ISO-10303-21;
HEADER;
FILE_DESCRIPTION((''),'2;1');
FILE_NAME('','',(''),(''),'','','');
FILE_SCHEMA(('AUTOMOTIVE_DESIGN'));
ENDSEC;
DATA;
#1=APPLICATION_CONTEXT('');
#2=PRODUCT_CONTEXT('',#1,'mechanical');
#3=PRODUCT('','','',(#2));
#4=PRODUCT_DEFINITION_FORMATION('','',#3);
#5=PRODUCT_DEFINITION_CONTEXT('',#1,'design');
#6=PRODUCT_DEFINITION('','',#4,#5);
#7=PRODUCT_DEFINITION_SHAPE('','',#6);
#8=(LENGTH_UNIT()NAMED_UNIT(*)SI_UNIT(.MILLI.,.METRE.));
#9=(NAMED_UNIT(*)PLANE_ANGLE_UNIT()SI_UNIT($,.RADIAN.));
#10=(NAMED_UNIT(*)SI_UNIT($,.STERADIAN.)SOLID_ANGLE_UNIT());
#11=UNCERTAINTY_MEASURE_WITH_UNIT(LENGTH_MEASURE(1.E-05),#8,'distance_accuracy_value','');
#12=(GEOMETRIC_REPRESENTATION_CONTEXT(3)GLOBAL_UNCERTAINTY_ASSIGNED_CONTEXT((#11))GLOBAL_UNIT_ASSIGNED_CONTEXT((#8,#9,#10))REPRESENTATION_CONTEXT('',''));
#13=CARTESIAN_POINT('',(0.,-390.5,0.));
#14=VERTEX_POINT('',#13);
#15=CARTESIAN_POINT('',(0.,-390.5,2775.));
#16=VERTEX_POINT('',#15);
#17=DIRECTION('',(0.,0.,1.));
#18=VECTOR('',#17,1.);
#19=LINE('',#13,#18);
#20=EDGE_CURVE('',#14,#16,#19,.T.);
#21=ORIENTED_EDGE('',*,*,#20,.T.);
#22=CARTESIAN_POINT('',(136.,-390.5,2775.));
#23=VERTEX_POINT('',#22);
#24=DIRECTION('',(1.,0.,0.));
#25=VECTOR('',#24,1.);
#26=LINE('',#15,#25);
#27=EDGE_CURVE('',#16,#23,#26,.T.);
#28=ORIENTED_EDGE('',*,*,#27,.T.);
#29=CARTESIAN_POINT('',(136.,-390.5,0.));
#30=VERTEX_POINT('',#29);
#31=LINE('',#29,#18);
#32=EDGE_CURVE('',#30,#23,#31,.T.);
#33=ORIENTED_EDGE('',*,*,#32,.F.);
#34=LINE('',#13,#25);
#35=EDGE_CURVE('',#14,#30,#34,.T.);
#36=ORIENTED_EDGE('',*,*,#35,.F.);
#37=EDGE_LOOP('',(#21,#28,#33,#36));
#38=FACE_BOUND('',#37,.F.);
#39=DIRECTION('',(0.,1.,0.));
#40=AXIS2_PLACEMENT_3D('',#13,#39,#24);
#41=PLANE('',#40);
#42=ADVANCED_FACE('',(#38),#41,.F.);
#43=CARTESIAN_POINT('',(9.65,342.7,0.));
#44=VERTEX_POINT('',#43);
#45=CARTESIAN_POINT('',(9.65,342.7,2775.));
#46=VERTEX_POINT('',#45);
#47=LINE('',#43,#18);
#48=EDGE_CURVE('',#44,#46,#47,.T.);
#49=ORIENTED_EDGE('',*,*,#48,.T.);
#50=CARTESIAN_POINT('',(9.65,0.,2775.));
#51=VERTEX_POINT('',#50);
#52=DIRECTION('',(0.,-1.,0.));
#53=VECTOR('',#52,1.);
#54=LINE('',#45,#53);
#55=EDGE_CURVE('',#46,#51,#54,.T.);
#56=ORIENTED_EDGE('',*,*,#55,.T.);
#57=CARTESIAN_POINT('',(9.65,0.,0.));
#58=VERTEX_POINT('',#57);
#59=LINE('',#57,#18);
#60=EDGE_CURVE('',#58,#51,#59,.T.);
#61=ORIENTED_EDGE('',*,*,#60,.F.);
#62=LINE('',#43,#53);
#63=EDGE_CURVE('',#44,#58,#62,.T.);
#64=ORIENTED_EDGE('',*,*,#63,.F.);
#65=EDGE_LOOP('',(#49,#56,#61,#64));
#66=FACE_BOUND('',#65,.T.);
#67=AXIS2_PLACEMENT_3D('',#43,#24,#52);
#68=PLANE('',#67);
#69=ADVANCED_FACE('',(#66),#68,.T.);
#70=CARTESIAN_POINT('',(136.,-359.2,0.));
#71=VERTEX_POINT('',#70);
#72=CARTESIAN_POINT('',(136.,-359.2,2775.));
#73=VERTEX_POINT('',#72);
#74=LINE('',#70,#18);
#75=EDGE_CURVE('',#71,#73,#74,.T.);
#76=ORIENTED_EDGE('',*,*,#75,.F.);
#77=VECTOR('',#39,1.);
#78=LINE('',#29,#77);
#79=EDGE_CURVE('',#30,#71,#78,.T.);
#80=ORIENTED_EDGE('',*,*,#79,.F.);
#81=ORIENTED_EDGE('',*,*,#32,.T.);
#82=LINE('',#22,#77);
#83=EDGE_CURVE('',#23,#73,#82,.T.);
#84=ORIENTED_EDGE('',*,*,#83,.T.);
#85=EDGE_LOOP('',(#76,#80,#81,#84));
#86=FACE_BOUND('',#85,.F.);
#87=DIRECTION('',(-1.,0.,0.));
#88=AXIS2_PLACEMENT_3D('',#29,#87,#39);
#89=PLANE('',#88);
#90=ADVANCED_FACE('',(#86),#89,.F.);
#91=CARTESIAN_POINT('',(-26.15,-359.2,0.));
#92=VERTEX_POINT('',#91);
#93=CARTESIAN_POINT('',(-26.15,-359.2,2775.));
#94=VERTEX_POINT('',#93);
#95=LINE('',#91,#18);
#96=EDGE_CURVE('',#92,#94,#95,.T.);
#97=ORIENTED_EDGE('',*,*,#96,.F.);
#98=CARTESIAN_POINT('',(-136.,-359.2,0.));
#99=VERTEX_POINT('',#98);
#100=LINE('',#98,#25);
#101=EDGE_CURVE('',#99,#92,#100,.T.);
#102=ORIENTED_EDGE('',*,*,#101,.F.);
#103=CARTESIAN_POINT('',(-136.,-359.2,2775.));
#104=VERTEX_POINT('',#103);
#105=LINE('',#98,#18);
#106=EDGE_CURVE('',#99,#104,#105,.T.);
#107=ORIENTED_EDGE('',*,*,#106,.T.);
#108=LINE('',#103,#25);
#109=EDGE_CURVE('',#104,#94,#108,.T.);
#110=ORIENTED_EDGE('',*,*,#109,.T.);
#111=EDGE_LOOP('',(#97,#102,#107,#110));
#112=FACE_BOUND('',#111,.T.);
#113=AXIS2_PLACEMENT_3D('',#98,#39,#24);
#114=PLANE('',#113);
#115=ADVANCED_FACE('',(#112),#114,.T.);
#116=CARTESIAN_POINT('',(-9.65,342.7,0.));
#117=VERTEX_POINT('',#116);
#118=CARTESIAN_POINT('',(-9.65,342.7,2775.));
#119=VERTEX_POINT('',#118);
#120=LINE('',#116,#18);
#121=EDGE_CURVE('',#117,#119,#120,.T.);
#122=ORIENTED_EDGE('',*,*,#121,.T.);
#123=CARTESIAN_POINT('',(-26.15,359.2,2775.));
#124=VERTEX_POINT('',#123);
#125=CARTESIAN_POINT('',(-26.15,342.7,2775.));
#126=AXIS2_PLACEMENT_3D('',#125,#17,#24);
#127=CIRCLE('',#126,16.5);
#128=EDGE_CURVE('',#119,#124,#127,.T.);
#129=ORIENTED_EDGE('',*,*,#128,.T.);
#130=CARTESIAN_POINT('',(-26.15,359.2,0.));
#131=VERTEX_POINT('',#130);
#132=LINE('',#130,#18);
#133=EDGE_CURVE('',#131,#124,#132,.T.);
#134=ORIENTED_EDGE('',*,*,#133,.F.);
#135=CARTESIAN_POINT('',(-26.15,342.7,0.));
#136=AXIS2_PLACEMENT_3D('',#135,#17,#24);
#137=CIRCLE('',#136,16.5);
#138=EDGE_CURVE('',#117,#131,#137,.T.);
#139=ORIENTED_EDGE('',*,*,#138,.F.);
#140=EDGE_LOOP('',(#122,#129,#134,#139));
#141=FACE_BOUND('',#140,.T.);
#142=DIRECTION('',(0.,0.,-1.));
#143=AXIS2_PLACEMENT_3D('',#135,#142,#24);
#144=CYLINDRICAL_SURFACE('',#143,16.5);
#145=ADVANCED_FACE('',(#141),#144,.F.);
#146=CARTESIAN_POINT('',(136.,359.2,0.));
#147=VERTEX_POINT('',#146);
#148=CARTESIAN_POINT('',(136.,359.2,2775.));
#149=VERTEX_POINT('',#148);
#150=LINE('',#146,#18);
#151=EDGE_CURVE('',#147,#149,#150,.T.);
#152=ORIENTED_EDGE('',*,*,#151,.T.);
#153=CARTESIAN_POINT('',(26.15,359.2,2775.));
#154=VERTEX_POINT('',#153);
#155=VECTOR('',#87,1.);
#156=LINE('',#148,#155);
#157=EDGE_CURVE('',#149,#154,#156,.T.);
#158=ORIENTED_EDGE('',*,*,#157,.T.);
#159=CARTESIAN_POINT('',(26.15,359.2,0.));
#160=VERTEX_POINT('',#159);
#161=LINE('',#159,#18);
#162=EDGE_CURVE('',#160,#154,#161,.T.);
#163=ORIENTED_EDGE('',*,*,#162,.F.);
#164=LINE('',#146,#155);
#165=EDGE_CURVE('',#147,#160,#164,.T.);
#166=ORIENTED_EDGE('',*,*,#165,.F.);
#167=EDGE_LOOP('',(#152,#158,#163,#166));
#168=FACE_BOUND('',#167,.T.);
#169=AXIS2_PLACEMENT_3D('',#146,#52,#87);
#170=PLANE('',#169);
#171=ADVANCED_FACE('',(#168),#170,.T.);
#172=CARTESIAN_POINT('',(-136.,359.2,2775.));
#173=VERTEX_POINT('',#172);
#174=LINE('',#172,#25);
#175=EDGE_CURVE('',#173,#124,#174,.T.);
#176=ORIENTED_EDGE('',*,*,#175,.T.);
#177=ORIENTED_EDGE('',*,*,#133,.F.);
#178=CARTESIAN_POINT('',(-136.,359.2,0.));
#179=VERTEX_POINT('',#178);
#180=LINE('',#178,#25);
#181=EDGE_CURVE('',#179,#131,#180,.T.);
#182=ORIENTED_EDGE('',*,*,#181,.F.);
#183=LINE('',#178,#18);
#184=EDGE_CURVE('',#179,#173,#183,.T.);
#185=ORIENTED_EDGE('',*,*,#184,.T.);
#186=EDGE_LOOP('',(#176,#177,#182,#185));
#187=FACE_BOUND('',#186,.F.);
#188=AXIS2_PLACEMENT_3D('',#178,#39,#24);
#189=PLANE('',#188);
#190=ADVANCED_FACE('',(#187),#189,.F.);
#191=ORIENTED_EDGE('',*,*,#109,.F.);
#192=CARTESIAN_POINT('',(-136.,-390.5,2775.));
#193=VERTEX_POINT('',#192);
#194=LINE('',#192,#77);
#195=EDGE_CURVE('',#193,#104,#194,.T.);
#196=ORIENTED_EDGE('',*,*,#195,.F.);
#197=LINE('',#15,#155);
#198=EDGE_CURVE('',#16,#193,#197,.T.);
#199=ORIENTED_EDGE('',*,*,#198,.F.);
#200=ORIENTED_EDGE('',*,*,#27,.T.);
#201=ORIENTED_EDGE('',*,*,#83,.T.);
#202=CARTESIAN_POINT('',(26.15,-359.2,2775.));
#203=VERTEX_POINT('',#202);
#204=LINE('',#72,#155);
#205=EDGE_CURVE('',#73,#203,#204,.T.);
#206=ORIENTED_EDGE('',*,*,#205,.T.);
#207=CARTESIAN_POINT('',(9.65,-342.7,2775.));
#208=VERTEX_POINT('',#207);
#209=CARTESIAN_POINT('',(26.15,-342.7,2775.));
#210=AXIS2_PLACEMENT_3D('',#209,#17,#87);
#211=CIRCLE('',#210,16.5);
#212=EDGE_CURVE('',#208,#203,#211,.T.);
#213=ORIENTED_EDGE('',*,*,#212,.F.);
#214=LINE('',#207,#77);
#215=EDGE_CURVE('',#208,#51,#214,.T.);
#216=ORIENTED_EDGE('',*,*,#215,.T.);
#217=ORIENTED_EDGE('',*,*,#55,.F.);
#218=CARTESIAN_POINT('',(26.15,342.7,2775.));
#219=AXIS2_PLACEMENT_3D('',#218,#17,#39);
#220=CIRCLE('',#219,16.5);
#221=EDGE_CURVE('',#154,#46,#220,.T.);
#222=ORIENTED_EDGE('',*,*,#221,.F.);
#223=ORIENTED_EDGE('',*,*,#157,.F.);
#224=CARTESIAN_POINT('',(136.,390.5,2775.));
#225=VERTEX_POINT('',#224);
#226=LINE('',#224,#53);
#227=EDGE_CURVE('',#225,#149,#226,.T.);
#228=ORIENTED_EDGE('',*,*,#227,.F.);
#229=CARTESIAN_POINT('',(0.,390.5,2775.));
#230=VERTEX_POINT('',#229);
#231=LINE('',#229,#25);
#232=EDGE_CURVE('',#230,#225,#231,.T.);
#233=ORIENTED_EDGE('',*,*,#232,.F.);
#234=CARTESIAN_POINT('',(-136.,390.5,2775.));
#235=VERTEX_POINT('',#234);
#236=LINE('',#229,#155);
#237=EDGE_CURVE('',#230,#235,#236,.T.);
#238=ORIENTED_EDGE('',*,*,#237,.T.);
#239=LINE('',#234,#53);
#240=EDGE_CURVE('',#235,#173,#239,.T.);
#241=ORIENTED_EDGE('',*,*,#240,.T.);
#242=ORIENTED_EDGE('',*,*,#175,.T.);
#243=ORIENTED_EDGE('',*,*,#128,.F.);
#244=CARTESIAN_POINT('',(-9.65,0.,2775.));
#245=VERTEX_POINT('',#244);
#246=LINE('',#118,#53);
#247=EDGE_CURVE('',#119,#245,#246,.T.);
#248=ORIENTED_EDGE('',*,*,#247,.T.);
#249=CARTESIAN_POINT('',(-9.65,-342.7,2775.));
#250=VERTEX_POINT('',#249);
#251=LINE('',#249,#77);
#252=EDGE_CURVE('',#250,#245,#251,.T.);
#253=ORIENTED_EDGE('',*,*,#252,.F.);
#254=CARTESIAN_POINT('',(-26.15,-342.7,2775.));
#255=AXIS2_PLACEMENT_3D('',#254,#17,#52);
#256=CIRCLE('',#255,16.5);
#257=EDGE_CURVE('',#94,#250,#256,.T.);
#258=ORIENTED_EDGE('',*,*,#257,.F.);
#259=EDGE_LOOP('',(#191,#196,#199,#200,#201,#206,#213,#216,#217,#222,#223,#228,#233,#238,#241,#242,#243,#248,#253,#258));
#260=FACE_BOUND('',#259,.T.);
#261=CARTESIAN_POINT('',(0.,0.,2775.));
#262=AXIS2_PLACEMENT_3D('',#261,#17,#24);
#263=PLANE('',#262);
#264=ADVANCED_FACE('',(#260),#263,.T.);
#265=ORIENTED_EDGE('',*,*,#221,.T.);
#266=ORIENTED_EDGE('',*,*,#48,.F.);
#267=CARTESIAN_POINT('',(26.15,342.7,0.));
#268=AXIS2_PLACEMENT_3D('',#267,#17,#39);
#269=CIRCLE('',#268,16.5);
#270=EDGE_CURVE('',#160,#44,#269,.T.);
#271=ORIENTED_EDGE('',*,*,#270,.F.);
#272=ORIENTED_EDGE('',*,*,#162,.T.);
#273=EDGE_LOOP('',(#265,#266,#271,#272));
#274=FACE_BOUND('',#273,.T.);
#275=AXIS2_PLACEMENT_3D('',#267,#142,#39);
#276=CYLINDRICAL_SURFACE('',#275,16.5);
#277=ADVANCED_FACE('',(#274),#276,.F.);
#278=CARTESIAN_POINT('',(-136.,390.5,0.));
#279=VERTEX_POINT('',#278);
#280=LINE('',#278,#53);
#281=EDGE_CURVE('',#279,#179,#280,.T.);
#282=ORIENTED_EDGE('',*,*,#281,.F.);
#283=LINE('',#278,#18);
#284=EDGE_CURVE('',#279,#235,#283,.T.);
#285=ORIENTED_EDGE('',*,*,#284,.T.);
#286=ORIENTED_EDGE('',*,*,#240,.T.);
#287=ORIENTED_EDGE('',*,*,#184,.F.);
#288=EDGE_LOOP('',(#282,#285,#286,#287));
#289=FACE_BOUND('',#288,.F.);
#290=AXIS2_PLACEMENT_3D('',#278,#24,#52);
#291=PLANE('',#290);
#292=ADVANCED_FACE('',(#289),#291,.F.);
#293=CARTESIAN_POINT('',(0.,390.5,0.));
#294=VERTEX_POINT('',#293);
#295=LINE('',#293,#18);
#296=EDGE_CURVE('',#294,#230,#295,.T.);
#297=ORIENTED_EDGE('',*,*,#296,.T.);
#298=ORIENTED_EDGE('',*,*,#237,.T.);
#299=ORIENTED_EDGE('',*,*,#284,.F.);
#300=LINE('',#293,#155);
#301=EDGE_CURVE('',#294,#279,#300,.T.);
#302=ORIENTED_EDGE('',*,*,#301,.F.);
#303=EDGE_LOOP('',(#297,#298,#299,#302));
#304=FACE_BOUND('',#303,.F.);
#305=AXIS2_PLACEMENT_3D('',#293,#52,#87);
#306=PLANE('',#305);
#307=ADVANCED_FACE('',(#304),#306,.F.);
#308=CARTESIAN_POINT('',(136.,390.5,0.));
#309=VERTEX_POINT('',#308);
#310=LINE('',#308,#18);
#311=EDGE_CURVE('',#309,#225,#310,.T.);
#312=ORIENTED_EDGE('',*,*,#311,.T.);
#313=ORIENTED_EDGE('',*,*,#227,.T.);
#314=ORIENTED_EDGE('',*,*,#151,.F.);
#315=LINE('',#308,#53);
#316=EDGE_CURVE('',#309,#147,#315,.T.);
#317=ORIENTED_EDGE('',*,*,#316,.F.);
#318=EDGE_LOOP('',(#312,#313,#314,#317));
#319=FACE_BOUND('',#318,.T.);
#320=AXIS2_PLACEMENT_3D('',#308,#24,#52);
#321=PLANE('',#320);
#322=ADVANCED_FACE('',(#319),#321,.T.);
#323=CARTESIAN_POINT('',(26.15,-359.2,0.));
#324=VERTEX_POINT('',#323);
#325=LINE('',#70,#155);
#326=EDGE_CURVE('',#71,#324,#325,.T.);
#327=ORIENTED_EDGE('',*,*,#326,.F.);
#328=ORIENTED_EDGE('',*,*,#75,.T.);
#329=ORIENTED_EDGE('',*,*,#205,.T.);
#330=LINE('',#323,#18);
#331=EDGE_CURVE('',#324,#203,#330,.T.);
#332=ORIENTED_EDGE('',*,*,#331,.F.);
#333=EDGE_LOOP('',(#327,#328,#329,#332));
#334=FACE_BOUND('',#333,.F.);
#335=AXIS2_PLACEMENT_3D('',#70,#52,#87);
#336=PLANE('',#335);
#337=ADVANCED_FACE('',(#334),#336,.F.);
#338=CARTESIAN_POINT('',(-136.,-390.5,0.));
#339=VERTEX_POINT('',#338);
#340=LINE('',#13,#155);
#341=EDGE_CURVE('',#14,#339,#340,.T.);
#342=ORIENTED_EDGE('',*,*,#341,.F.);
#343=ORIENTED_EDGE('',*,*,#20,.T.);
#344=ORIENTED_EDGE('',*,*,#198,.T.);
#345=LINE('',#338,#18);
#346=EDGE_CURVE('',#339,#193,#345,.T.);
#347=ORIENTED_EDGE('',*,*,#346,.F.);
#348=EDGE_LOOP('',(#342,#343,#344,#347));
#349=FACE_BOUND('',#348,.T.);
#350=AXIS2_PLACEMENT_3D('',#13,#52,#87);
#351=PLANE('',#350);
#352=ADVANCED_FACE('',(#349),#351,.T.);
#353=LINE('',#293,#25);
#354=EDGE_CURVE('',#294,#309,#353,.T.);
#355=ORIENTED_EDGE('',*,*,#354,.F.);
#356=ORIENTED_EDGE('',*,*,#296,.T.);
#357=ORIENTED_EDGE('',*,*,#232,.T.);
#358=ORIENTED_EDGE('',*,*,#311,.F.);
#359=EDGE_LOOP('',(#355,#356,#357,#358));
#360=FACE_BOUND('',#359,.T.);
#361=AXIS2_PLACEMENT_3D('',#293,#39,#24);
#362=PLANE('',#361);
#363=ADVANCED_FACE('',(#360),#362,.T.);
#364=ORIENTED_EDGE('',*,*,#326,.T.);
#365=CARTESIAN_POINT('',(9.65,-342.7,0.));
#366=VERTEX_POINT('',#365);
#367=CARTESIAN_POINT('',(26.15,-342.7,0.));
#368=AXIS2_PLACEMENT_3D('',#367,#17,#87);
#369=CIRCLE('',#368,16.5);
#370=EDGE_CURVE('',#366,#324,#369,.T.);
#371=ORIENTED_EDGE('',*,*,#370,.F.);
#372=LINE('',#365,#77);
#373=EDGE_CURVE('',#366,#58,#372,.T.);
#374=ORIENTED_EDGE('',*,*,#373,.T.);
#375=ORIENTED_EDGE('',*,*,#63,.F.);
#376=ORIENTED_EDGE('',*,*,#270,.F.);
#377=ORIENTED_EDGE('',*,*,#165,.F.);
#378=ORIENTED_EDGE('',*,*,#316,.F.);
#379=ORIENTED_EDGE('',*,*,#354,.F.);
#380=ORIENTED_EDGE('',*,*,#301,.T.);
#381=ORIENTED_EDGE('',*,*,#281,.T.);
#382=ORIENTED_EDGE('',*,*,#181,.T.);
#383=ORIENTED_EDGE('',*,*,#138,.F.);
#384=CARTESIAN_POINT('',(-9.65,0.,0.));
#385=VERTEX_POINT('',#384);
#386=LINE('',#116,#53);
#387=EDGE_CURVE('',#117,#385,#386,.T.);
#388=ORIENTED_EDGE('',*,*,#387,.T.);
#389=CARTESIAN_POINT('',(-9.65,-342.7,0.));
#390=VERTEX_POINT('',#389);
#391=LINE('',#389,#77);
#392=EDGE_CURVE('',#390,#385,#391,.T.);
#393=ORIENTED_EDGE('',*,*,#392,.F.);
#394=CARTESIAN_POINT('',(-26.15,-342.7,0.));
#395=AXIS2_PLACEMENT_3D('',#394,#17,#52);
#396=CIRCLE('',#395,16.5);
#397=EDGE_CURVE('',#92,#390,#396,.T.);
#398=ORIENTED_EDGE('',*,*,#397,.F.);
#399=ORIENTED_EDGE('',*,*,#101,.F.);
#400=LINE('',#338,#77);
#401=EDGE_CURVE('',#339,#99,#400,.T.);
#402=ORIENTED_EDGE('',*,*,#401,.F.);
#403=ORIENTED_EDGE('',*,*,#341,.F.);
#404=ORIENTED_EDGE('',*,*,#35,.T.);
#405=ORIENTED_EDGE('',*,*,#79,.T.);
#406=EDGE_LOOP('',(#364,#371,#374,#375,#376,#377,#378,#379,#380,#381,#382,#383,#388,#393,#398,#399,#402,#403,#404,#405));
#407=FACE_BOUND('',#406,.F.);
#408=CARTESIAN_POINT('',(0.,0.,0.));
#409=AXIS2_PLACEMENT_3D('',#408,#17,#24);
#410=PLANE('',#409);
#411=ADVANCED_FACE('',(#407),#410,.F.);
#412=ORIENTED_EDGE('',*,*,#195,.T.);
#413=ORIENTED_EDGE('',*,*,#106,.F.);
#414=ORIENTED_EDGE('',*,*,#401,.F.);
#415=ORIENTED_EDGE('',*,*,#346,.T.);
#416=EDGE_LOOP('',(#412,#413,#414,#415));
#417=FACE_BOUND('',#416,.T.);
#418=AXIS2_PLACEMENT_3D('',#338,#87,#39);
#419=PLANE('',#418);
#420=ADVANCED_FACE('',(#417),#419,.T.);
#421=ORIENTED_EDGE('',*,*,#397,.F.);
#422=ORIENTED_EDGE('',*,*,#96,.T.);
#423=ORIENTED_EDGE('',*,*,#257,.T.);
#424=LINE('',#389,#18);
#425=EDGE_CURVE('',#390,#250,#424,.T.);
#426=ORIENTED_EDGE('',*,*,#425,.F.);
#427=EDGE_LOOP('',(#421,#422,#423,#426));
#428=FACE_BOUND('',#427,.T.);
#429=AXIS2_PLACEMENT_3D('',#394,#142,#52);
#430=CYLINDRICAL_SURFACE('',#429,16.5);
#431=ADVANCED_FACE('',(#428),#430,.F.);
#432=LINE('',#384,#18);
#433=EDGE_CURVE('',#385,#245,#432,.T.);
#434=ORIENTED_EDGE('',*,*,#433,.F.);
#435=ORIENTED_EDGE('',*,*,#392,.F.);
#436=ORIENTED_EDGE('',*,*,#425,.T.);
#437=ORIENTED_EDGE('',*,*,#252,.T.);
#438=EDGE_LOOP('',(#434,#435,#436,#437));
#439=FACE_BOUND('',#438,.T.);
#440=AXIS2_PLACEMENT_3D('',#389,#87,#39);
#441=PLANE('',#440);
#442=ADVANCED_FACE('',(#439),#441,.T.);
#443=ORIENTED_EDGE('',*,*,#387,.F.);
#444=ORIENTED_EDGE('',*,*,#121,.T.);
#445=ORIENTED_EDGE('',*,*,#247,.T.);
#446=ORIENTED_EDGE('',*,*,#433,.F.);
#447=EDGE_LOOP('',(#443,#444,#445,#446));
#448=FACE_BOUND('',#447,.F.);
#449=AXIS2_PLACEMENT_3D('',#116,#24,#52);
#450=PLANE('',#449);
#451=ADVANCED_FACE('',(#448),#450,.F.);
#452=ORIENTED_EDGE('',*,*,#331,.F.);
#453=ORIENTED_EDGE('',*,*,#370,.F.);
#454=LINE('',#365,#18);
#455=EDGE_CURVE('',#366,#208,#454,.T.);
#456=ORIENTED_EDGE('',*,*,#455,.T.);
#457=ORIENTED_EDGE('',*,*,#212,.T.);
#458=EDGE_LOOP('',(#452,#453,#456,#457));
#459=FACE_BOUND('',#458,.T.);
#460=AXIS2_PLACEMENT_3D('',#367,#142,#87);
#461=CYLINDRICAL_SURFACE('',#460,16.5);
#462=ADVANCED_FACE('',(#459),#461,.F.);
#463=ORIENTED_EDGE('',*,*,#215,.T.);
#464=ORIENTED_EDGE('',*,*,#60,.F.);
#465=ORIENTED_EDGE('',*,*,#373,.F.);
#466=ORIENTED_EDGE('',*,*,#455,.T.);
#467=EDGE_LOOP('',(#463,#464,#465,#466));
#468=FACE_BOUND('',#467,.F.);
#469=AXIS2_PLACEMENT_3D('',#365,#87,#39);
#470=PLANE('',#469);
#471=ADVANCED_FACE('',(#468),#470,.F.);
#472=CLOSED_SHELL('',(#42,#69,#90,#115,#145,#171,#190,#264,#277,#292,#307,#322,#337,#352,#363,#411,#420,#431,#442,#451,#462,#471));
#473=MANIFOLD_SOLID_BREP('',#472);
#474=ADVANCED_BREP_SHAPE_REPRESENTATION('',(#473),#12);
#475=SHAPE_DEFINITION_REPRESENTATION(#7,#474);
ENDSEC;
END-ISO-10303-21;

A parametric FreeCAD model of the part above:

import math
import FreeCAD as App
import Part
import Sketcher

doc = App.newDocument("Part")
body = doc.addObject("PartDesign::Body", "Body")

sketch1 = body.newObject("Sketcher::SketchObject", "Sketch")
sketch1.AttachmentSupport = (doc.getObject("XY_Plane"), [""])
sketch1.MapMode = "FlatFace"
sketch1.addGeometry(Part.LineSegment(App.Vector(-136, -359, 0), App.Vector(-136, -390, 0)), False)
sketch1.addGeometry(Part.LineSegment(App.Vector(-136, -390, 0), App.Vector(136, -390, 0)), False)
sketch1.addGeometry(Part.LineSegment(App.Vector(136, -390, 0), App.Vector(136, -359, 0)), False)
sketch1.addGeometry(Part.LineSegment(App.Vector(136, -359, 0), App.Vector(26, -359, 0)), False)
sketch1.addGeometry(Part.ArcOfCircle(Part.Circle(App.Vector(26, -343, 0), App.Vector(0, 0, 1), 16), math.radians(180), math.radians(270)), False)
sketch1.addGeometry(Part.LineSegment(App.Vector(10, -343, 0), App.Vector(10, 343, 0)), False)
sketch1.addGeometry(Part.ArcOfCircle(Part.Circle(App.Vector(26, 343, 0), App.Vector(0, 0, 1), 16), math.radians(90), math.radians(180)), False)
sketch1.addGeometry(Part.LineSegment(App.Vector(26, 359, 0), App.Vector(136, 359, 0)), False)
sketch1.addGeometry(Part.LineSegment(App.Vector(136, 359, 0), App.Vector(136, 390, 0)), False)
sketch1.addGeometry(Part.LineSegment(App.Vector(136, 390, 0), App.Vector(-136, 390, 0)), False)
sketch1.addGeometry(Part.LineSegment(App.Vector(-136, 390, 0), App.Vector(-136, 359, 0)), False)
sketch1.addGeometry(Part.LineSegment(App.Vector(-136, 359, 0), App.Vector(-26, 359, 0)), False)
sketch1.addGeometry(Part.ArcOfCircle(Part.Circle(App.Vector(-26, 343, 0), App.Vector(0, 0, 1), 16), math.radians(0), math.radians(90)), False)
sketch1.addGeometry(Part.LineSegment(App.Vector(-10, 343, 0), App.Vector(-10, -343, 0)), False)
sketch1.addGeometry(Part.ArcOfCircle(Part.Circle(App.Vector(-26, -343, 0), App.Vector(0, 0, 1), 16), math.radians(-90), math.radians(0)), False)
sketch1.addGeometry(Part.LineSegment(App.Vector(-26, -359, 0), App.Vector(-136, -359, 0)), False)
sketch1.addConstraint(Sketcher.Constraint("Coincident", 0, 2, 1, 1))
sketch1.addConstraint(Sketcher.Constraint("Coincident", 1, 2, 2, 1))
sketch1.addConstraint(Sketcher.Constraint("Coincident", 2, 2, 3, 1))
sketch1.addConstraint(Sketcher.Constraint("Tangent", 3, 2, 4, 2))
sketch1.addConstraint(Sketcher.Constraint("Tangent", 4, 1, 5, 1))
sketch1.addConstraint(Sketcher.Constraint("Tangent", 5, 2, 6, 2))
sketch1.addConstraint(Sketcher.Constraint("Tangent", 6, 1, 7, 1))
sketch1.addConstraint(Sketcher.Constraint("Coincident", 7, 2, 8, 1))
sketch1.addConstraint(Sketcher.Constraint("Coincident", 8, 2, 9, 1))
sketch1.addConstraint(Sketcher.Constraint("Coincident", 9, 2, 10, 1))
sketch1.addConstraint(Sketcher.Constraint("Coincident", 10, 2, 11, 1))
sketch1.addConstraint(Sketcher.Constraint("Tangent", 11, 2, 12, 2))
sketch1.addConstraint(Sketcher.Constraint("Tangent", 12, 1, 13, 1))
sketch1.addConstraint(Sketcher.Constraint("Tangent", 13, 2, 14, 2))
sketch1.addConstraint(Sketcher.Constraint("Tangent", 14, 1, 15, 1))
sketch1.addConstraint(Sketcher.Constraint("Coincident", 15, 2, 0, 1))
sketch1.addConstraint(Sketcher.Constraint("Vertical", 0))
sketch1.addConstraint(Sketcher.Constraint("Horizontal", 1))
sketch1.addConstraint(Sketcher.Constraint("Vertical", 2))
sketch1.addConstraint(Sketcher.Constraint("Horizontal", 3))
sketch1.addConstraint(Sketcher.Constraint("Vertical", 5))
sketch1.addConstraint(Sketcher.Constraint("Horizontal", 7))
sketch1.addConstraint(Sketcher.Constraint("Vertical", 8))
sketch1.addConstraint(Sketcher.Constraint("Horizontal", 9))
sketch1.addConstraint(Sketcher.Constraint("Vertical", 10))
sketch1.addConstraint(Sketcher.Constraint("Horizontal", 11))
sketch1.addConstraint(Sketcher.Constraint("Vertical", 13))
sketch1.addConstraint(Sketcher.Constraint("Horizontal", 15))
sketch1.addConstraint(Sketcher.Constraint("Equal", 4, 6))
sketch1.addConstraint(Sketcher.Constraint("Equal", 6, 12))
sketch1.addConstraint(Sketcher.Constraint("Equal", 12, 14))
sketch1.addConstraint(Sketcher.Constraint("Symmetric", 4, 3, 12, 3, -1, 1))
sketch1.addConstraint(Sketcher.Constraint("Symmetric", 0, 2, 8, 2, -1, 1))
sketch1.addConstraint(Sketcher.Constraint("Symmetric", 7, 2, 10, 2, -2))
sketch1.addConstraint(Sketcher.Constraint("Symmetric", 2, 2, 15, 2, -2))
sketch1.addConstraint(Sketcher.Constraint("Radius", 4, 16.5))
sketch1.addConstraint(Sketcher.Constraint("DistanceY", 0, 2, 0, 1, 31.3))
sketch1.addConstraint(Sketcher.Constraint("DistanceX", 0, 2, -1, 1, 136.0))
sketch1.addConstraint(Sketcher.Constraint("DistanceY", 0, 2, -1, 1, 390.5))
sketch1.addConstraint(Sketcher.Constraint("DistanceX", -1, 1, 4, 1, 9.65))
pad1 = body.newObject("PartDesign::Pad", "Pad")
pad1.Profile = sketch1
pad1.Length = 2775

doc.recompute()
